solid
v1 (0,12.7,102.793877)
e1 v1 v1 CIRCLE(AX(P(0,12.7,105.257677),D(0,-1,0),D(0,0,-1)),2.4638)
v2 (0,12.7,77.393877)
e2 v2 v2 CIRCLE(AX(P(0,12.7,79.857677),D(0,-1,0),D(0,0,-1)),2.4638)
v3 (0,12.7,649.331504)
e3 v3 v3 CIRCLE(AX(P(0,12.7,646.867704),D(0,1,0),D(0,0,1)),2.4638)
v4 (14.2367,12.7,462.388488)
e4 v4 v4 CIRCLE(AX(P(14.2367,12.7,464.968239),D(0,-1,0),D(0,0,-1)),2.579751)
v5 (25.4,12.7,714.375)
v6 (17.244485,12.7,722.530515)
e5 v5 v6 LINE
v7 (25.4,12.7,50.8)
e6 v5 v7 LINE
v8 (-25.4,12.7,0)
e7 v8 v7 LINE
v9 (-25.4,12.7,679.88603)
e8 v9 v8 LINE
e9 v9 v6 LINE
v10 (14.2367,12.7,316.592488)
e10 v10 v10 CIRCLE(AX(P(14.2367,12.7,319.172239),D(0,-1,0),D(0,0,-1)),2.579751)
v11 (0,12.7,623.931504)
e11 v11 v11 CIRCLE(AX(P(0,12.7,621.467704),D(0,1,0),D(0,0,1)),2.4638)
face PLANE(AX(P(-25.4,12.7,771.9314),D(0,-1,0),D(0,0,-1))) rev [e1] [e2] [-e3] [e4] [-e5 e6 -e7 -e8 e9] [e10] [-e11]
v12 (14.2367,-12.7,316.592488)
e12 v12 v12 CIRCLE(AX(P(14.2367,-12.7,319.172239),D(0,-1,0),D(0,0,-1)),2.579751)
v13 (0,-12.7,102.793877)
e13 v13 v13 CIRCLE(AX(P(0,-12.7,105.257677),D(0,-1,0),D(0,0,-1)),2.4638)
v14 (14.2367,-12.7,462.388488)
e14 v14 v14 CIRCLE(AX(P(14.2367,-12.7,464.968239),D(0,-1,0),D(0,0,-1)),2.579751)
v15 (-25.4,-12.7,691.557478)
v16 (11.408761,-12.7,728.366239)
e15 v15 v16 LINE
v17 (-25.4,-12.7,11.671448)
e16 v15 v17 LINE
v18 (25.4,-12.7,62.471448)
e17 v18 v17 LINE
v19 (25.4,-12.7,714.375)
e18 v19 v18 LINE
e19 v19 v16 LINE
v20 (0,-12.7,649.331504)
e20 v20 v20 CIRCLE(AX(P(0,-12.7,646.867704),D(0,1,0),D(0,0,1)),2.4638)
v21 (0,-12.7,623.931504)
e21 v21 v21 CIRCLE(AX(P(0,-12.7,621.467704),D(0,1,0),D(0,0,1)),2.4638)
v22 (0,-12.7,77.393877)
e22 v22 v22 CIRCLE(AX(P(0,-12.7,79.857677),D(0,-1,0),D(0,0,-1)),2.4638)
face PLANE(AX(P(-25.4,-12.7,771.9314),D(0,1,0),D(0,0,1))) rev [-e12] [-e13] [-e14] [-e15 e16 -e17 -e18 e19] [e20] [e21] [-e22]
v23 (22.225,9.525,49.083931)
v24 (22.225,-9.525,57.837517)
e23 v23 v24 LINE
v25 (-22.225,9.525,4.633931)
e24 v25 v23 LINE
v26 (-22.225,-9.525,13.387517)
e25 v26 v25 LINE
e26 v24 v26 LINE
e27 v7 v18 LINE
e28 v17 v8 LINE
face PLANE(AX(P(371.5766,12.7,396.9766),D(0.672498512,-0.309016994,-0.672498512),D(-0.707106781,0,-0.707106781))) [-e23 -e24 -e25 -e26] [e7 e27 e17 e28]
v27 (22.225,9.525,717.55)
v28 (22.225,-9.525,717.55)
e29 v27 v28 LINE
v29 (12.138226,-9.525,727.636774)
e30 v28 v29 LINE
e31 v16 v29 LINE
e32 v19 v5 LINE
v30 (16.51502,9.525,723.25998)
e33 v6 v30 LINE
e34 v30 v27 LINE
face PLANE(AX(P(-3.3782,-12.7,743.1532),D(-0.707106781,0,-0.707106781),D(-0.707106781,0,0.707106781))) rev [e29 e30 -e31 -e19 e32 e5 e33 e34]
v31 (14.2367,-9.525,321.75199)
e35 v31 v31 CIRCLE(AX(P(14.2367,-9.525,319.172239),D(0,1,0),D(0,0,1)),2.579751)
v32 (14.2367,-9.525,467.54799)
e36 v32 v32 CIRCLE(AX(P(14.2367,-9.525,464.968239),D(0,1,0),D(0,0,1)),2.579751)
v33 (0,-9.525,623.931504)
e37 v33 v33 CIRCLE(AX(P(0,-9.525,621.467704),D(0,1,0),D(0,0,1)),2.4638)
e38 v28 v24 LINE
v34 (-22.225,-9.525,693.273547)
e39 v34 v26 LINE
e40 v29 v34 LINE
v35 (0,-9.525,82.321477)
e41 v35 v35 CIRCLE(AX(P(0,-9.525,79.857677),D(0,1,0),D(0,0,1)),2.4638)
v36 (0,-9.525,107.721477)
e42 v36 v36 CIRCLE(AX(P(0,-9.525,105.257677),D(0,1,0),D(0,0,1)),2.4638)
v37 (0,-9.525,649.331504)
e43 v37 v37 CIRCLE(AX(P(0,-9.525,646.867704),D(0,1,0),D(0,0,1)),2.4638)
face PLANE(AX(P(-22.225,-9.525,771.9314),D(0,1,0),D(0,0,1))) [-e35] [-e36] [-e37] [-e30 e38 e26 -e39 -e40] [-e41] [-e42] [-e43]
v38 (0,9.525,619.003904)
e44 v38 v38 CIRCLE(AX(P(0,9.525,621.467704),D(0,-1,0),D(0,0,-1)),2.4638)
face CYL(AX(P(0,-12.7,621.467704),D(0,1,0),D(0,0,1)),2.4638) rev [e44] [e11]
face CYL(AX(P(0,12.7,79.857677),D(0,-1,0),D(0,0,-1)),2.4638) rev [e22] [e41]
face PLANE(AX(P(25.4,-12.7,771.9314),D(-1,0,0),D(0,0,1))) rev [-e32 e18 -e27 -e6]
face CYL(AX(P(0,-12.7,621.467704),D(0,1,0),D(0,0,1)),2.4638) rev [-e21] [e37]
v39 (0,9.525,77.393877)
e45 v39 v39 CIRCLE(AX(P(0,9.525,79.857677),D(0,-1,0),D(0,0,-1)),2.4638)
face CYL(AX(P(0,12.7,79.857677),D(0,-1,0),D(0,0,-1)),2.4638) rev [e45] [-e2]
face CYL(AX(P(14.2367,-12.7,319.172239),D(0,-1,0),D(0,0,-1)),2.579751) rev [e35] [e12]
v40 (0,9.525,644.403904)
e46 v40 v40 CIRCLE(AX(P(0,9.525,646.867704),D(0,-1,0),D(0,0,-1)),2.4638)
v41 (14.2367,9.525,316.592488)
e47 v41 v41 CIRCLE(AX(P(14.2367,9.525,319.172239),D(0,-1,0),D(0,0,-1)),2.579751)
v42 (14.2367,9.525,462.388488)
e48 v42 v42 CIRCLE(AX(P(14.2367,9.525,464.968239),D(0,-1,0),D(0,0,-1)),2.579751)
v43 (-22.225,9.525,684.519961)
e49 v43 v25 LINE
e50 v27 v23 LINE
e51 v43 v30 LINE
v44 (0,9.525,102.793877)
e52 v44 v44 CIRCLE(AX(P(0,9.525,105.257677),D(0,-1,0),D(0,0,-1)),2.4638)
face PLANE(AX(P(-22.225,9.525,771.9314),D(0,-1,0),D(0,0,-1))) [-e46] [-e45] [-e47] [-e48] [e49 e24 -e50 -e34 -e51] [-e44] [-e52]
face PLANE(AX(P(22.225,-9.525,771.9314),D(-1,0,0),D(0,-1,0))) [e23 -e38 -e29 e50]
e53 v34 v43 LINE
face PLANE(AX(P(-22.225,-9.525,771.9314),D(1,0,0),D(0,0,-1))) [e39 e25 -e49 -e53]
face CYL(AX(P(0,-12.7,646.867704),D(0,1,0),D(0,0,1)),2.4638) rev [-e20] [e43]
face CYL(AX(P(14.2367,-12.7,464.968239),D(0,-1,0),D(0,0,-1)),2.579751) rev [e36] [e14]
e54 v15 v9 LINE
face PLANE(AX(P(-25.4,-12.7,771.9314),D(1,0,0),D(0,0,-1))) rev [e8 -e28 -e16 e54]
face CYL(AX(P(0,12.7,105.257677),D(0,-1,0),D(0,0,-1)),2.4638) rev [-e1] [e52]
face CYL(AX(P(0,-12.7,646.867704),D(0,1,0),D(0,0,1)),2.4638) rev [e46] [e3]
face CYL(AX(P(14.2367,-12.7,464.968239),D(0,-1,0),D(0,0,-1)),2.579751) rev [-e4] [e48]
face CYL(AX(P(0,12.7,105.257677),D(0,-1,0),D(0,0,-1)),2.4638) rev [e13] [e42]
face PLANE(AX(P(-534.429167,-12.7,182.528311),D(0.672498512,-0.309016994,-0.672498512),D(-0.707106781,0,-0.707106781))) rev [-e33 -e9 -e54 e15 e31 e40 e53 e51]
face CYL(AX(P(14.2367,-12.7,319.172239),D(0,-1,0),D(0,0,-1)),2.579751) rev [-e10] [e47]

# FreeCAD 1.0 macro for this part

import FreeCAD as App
import Part
import Sketcher

V = App.Vector
Q = App.Units.Quantity

doc = App.newDocument("Part")
body = doc.addObject("PartDesign::Body", "Body")

sketch1 = body.newObject("Sketcher::SketchObject", "Sketch")
sketch1.AttachmentSupport = (doc.getObject("XY_Plane"), [""])
sketch1.MapMode = "FlatFace"
sketch1.addGeometry([
    Part.LineSegment(V(-25, 13, 0), V(-25, -13, 0)),
    Part.LineSegment(V(-25, -13, 0), V(25, -13, 0)),
    Part.LineSegment(V(25, -13, 0), V(25, 13, 0)),
    Part.LineSegment(V(25, 13, 0), V(-25, 13, 0)),
    Part.LineSegment(V(22, -10, 0), V(-22, -10, 0)),
    Part.LineSegment(V(-22, -10, 0), V(-22, 10, 0)),
    Part.LineSegment(V(-22, 10, 0), V(22, 10, 0)),
    Part.LineSegment(V(22, 10, 0), V(22, -10, 0)),
], False)
sketch1.addConstraint([
    Sketcher.Constraint("Coincident", 0, 2, 1, 1),
    Sketcher.Constraint("Coincident", 1, 2, 2, 1),
    Sketcher.Constraint("Coincident", 2, 2, 3, 1),
    Sketcher.Constraint("Coincident", 3, 2, 0, 1),
    Sketcher.Constraint("Coincident", 4, 2, 5, 1),
    Sketcher.Constraint("Coincident", 5, 2, 6, 1),
    Sketcher.Constraint("Coincident", 6, 2, 7, 1),
    Sketcher.Constraint("Coincident", 7, 2, 4, 1),
    Sketcher.Constraint("Vertical", 0),
    Sketcher.Constraint("Horizontal", 1),
    Sketcher.Constraint("Vertical", 2),
    Sketcher.Constraint("Horizontal", 3),
    Sketcher.Constraint("Horizontal", 4),
    Sketcher.Constraint("Vertical", 5),
    Sketcher.Constraint("Horizontal", 6),
    Sketcher.Constraint("Vertical", 7),
    Sketcher.Constraint("Symmetric", 0, 2, 2, 2, -1, 1),
    Sketcher.Constraint("Symmetric", 4, 2, 6, 2, -1, 1),
    Sketcher.Constraint("DistanceX", 1, 1, 1, 2, Q("2 in")),
    Sketcher.Constraint("DistanceY", 0, 2, 0, 1, Q("1 in")),
    Sketcher.Constraint("DistanceX", 4, 2, 4, 1, Q("1.75 in")),
    Sketcher.Constraint("DistanceY", 5, 1, 5, 2, Q("0.75 in")),
])
pad1 = body.newObject("PartDesign::Pad", "Pad")
pad1.Profile = sketch1
pad1.Length = Q("30.391 in")

sketch2 = body.newObject("Sketcher::SketchObject", "Sketch001")
sketch2.AttachmentSupport = (doc.getObject("XZ_Plane"), [""])
sketch2.MapMode = "FlatFace"
sketch2.AttachmentOffset = App.Placement(V(0, 0, -0.5 * 25.4), App.Rotation())
sketch2.addGeometry([
    Part.LineSegment(V(-25, 0, 0), V(25, 51, 0)),
    Part.LineSegment(V(25, 51, 0), V(25, 0, 0)),
    Part.LineSegment(V(25, 0, 0), V(-25, 0, 0)),
    Part.LineSegment(V(25, 772, 0), V(-25, 721, 0)),
    Part.LineSegment(V(-25, 721, 0), V(-25, 772, 0)),
    Part.LineSegment(V(-25, 772, 0), V(25, 772, 0)),
], False)
sketch2.addConstraint([
    Sketcher.Constraint("Coincident", 0, 2, 1, 1),
    Sketcher.Constraint("Coincident", 1, 2, 2, 1),
    Sketcher.Constraint("Coincident", 2, 2, 0, 1),
    Sketcher.Constraint("Coincident", 3, 2, 4, 1),
    Sketcher.Constraint("Coincident", 4, 2, 5, 1),
    Sketcher.Constraint("Coincident", 5, 2, 3, 1),
    Sketcher.Constraint("Vertical", 1),
    Sketcher.Constraint("Horizontal", 2),
    Sketcher.Constraint("Vertical", 4),
    Sketcher.Constraint("Horizontal", 5),
    Sketcher.Constraint("Symmetric", 1, 2, 2, 2, -1, 1),
    Sketcher.Constraint("Parallel", 0, 3),
    Sketcher.Constraint("Vertical", 2, 2, 3, 2),
    Sketcher.Constraint("Vertical", 1, 2, 5, 2),
    Sketcher.Constraint("Equal", 5, 1),
    Sketcher.Constraint("DistanceX", 2, 2, 2, 1, Q("2 in")),
    Sketcher.Constraint("DistanceY", -1, 1, 3, 2, Q("28.391 in")),
])
pocket1 = body.newObject("PartDesign::Pocket", "Pocket")
pocket1.Profile = sketch2
pocket1.Length = Q("30.391 in")
pocket1.Reversed = True

sketch3 = body.newObject("Sketcher::SketchObject", "Sketch002")
sketch3.AttachmentSupport = (doc.getObject("XZ_Plane"), [""])
sketch3.MapMode = "FlatFace"
sketch3.AttachmentOffset = App.Placement(V(0, 0, -0.5 * 25.4), App.Rotation())
sketch3.addGeometry([
    Part.LineSegment(V(25, 714, 0), V(-3, 743, 0)),
    Part.LineSegment(V(-3, 743, 0), V(-3, 772, 0)),
    Part.LineSegment(V(-3, 772, 0), V(25, 772, 0)),
    Part.LineSegment(V(25, 772, 0), V(25, 714, 0)),
], False)
sketch3.addConstraint([
    Sketcher.Constraint("Coincident", 0, 2, 1, 1),
    Sketcher.Constraint("Coincident", 1, 2, 2, 1),
    Sketcher.Constraint("Coincident", 2, 2, 3, 1),
    Sketcher.Constraint("Coincident", 3, 2, 0, 1),
    Sketcher.Constraint("Vertical", 1),
    Sketcher.Constraint("Horizontal", 2),
    Sketcher.Constraint("Vertical", 3),
    Sketcher.Constraint("Equal", 2, 1),
    Sketcher.Constraint("DistanceX", -1, 1, 2, 2, Q("1 in")),
    Sketcher.Constraint("Angle", 0, Q("135 deg")),
    Sketcher.Constraint("DistanceX", 2, 1, 2, 2, Q("1.133 in")),
    Sketcher.Constraint("DistanceY", -1, 1, 0, 2, Q("29.258 in")),
])
pocket2 = body.newObject("PartDesign::Pocket", "Pocket001")
pocket2.Profile = sketch3
pocket2.Type = "ThroughAll"
pocket2.Reversed = True

sketch4 = body.newObject("Sketcher::SketchObject", "Sketch003")
sketch4.Placement = App.Placement(V(-12.7, 0, -12.7), App.Rotation(V(0, -1, 0), V(0.707106781, 0, -0.707106781), V(0.707106781, 0, 0.707106781), "ZXY"))
sketch4.addGeometry([
    Part.LineSegment(V(-13, -18, 0), V(13, -26, 0)),
    Part.LineSegment(V(13, -26, 0), V(13, -18, 0)),
    Part.LineSegment(V(13, -18, 0), V(-13, -18, 0)),
], False)
sketch4.addConstraint([
    Sketcher.Constraint("Coincident", 0, 2, 1, 1),
    Sketcher.Constraint("Coincident", 1, 2, 2, 1),
    Sketcher.Constraint("Coincident", 2, 2, 0, 1),
    Sketcher.Constraint("Vertical", 1),
    Sketcher.Constraint("Horizontal", 2),
    Sketcher.Constraint("DistanceX", 2, 2, 2, 1, Q("1 in")),
    Sketcher.Constraint("Angle", 0, Q("-18 deg")),
    Sketcher.Constraint("DistanceX", -1, 1, 0, 2, Q("0.5 in")),
    Sketcher.Constraint("DistanceY", 0, 2, -1, 1, Q("26.213473 mm")),
])
pocket3 = body.newObject("PartDesign::Pocket", "Pocket002")
pocket3.Profile = sketch4
pocket3.Type = "ThroughAll"
pocket3.Reversed = True

sketch5 = body.newObject("Sketcher::SketchObject", "Sketch004")
sketch5.Placement = App.Placement(V(369.8875, 0, 369.8875), App.Rotation(V(0.707106781, 0, -0.707106781), V(0, 0.999999999, 0), V(0.707106781, 0, 0.707106781), "ZXY"))
sketch5.addGeometry([
    Part.LineSegment(V(-507, -13, 0), V(-499, 13, 0)),
    Part.LineSegment(V(-499, 13, 0), V(-528, 13, 0)),
    Part.LineSegment(V(-528, 13, 0), V(-528, -13, 0)),
    Part.LineSegment(V(-528, -13, 0), V(-507, -13, 0)),
], False)
sketch5.addConstraint([
    Sketcher.Constraint("Coincident", 0, 2, 1, 1),
    Sketcher.Constraint("Coincident", 1, 2, 2, 1),
    Sketcher.Constraint("Coincident", 2, 2, 3, 1),
    Sketcher.Constraint("Coincident", 3, 2, 0, 1),
    Sketcher.Constraint("Horizontal", 1),
    Sketcher.Constraint("Vertical", 2),
    Sketcher.Constraint("Horizontal", 3),
    Sketcher.Constraint("DistanceY", 2, 2, 2, 1, Q("1 in")),
    Sketcher.Constraint("Angle", 0, Q("72 deg")),
    Sketcher.Constraint("DistanceY", -1, 1, 0, 2, Q("0.5 in")),
    Sketcher.Constraint("DistanceX", 1, 2, 1, 1, Q("29.164881 mm")),
    Sketcher.Constraint("DistanceX", 0, 2, -1, 1, Q("498.712534 mm")),
])
pocket4 = body.newObject("PartDesign::Pocket", "Pocket003")
pocket4.Profile = sketch5
pocket4.Length = Q("30.391 in")

sketch6 = body.newObject("Sketcher::SketchObject", "Sketch005")
sketch6.AttachmentSupport = (doc.getObject("XZ_Plane"), [""])
sketch6.MapMode = "FlatFace"
sketch6.AttachmentOffset = App.Placement(V(0, 0, 0.5 * 25.4), App.Rotation())
sketch6.addGeometry([
    Part.Circle(V(0, 105.3, 0), V(0, 0, 1), 2.5),
    Part.Circle(V(0, 79.9, 0), V(0, 0, 1), 2.5),
], False)
sketch6.addConstraint([
    Sketcher.Constraint("Equal", 0, 1),
    Sketcher.Constraint("PointOnObject", 0, 3, -2),
    Sketcher.Constraint("PointOnObject", 1, 3, -2),
    Sketcher.Constraint("Diameter", 0, Q("0.194 in")),
    Sketcher.Constraint("DistanceY", 1, 3, 0, 3, Q("1 in")),
    Sketcher.Constraint("DistanceY", -1, 1, 0, 3, Q("105.257677 mm")),
])
pocket5 = body.newObject("PartDesign::Pocket", "Pocket004")
pocket5.Profile = sketch6
pocket5.Type = "ThroughAll"

sketch7 = body.newObject("Sketcher::SketchObject", "Sketch006")
sketch7.AttachmentSupport = (doc.getObject("XZ_Plane"), [""])
sketch7.MapMode = "FlatFace"
sketch7.AttachmentOffset = App.Placement(V(0, 0, -0.5 * 25.4), App.Rotation())
sketch7.addGeometry([
    Part.Circle(V(0, 646.9, 0), V(0, 0, 1), 2.5),
    Part.Circle(V(0, 621.5, 0), V(0, 0, 1), 2.5),
], False)
sketch7.addConstraint([
    Sketcher.Constraint("Equal", 0, 1),
    Sketcher.Constraint("PointOnObject", 0, 3, -2),
    Sketcher.Constraint("PointOnObject", 1, 3, -2),
    Sketcher.Constraint("Diameter", 0, Q("0.194 in")),
    Sketcher.Constraint("DistanceY", 1, 3, 0, 3, Q("1 in")),
    Sketcher.Constraint("DistanceY", -1, 1, 0, 3, Q("646.867704 mm")),
])
pocket6 = body.newObject("PartDesign::Pocket", "Pocket005")
pocket6.Profile = sketch7
pocket6.Type = "ThroughAll"
pocket6.Reversed = True

sketch8 = body.newObject("Sketcher::SketchObject", "Sketch007")
sketch8.AttachmentSupport = (doc.getObject("XZ_Plane"), [""])
sketch8.MapMode = "FlatFace"
sketch8.AttachmentOffset = App.Placement(V(0, 0, 0.5 * 25.4), App.Rotation())
sketch8.addGeometry([
    Part.Circle(V(14.2, 319.2, 0), V(0, 0, 1), 2.6),
    Part.Circle(V(14.2, 465, 0), V(0, 0, 1), 2.6),
], False)
sketch8.addConstraint([
    Sketcher.Constraint("Equal", 0, 1),
    Sketcher.Constraint("Vertical", 0, 3, 1, 3),
    Sketcher.Constraint("Diameter", 0, Q("5.159502 mm")),
    Sketcher.Constraint("DistanceY", 0, 3, 1, 3, Q("5.74 in")),
    Sketcher.Constraint("DistanceX", -1, 1, 0, 3, Q("0.5605 in")),
    Sketcher.Constraint("DistanceY", -1, 1, 0, 3, Q("319.172239 mm")),
])
doc.recompute()
hole = body.newObject("PartDesign::Hole", "Hole")
hole.Profile = sketch8
hole.ThreadType = "None"
hole.Diameter = 5.159502
hole.DepthType = "ThroughAll"

doc.recompute()
